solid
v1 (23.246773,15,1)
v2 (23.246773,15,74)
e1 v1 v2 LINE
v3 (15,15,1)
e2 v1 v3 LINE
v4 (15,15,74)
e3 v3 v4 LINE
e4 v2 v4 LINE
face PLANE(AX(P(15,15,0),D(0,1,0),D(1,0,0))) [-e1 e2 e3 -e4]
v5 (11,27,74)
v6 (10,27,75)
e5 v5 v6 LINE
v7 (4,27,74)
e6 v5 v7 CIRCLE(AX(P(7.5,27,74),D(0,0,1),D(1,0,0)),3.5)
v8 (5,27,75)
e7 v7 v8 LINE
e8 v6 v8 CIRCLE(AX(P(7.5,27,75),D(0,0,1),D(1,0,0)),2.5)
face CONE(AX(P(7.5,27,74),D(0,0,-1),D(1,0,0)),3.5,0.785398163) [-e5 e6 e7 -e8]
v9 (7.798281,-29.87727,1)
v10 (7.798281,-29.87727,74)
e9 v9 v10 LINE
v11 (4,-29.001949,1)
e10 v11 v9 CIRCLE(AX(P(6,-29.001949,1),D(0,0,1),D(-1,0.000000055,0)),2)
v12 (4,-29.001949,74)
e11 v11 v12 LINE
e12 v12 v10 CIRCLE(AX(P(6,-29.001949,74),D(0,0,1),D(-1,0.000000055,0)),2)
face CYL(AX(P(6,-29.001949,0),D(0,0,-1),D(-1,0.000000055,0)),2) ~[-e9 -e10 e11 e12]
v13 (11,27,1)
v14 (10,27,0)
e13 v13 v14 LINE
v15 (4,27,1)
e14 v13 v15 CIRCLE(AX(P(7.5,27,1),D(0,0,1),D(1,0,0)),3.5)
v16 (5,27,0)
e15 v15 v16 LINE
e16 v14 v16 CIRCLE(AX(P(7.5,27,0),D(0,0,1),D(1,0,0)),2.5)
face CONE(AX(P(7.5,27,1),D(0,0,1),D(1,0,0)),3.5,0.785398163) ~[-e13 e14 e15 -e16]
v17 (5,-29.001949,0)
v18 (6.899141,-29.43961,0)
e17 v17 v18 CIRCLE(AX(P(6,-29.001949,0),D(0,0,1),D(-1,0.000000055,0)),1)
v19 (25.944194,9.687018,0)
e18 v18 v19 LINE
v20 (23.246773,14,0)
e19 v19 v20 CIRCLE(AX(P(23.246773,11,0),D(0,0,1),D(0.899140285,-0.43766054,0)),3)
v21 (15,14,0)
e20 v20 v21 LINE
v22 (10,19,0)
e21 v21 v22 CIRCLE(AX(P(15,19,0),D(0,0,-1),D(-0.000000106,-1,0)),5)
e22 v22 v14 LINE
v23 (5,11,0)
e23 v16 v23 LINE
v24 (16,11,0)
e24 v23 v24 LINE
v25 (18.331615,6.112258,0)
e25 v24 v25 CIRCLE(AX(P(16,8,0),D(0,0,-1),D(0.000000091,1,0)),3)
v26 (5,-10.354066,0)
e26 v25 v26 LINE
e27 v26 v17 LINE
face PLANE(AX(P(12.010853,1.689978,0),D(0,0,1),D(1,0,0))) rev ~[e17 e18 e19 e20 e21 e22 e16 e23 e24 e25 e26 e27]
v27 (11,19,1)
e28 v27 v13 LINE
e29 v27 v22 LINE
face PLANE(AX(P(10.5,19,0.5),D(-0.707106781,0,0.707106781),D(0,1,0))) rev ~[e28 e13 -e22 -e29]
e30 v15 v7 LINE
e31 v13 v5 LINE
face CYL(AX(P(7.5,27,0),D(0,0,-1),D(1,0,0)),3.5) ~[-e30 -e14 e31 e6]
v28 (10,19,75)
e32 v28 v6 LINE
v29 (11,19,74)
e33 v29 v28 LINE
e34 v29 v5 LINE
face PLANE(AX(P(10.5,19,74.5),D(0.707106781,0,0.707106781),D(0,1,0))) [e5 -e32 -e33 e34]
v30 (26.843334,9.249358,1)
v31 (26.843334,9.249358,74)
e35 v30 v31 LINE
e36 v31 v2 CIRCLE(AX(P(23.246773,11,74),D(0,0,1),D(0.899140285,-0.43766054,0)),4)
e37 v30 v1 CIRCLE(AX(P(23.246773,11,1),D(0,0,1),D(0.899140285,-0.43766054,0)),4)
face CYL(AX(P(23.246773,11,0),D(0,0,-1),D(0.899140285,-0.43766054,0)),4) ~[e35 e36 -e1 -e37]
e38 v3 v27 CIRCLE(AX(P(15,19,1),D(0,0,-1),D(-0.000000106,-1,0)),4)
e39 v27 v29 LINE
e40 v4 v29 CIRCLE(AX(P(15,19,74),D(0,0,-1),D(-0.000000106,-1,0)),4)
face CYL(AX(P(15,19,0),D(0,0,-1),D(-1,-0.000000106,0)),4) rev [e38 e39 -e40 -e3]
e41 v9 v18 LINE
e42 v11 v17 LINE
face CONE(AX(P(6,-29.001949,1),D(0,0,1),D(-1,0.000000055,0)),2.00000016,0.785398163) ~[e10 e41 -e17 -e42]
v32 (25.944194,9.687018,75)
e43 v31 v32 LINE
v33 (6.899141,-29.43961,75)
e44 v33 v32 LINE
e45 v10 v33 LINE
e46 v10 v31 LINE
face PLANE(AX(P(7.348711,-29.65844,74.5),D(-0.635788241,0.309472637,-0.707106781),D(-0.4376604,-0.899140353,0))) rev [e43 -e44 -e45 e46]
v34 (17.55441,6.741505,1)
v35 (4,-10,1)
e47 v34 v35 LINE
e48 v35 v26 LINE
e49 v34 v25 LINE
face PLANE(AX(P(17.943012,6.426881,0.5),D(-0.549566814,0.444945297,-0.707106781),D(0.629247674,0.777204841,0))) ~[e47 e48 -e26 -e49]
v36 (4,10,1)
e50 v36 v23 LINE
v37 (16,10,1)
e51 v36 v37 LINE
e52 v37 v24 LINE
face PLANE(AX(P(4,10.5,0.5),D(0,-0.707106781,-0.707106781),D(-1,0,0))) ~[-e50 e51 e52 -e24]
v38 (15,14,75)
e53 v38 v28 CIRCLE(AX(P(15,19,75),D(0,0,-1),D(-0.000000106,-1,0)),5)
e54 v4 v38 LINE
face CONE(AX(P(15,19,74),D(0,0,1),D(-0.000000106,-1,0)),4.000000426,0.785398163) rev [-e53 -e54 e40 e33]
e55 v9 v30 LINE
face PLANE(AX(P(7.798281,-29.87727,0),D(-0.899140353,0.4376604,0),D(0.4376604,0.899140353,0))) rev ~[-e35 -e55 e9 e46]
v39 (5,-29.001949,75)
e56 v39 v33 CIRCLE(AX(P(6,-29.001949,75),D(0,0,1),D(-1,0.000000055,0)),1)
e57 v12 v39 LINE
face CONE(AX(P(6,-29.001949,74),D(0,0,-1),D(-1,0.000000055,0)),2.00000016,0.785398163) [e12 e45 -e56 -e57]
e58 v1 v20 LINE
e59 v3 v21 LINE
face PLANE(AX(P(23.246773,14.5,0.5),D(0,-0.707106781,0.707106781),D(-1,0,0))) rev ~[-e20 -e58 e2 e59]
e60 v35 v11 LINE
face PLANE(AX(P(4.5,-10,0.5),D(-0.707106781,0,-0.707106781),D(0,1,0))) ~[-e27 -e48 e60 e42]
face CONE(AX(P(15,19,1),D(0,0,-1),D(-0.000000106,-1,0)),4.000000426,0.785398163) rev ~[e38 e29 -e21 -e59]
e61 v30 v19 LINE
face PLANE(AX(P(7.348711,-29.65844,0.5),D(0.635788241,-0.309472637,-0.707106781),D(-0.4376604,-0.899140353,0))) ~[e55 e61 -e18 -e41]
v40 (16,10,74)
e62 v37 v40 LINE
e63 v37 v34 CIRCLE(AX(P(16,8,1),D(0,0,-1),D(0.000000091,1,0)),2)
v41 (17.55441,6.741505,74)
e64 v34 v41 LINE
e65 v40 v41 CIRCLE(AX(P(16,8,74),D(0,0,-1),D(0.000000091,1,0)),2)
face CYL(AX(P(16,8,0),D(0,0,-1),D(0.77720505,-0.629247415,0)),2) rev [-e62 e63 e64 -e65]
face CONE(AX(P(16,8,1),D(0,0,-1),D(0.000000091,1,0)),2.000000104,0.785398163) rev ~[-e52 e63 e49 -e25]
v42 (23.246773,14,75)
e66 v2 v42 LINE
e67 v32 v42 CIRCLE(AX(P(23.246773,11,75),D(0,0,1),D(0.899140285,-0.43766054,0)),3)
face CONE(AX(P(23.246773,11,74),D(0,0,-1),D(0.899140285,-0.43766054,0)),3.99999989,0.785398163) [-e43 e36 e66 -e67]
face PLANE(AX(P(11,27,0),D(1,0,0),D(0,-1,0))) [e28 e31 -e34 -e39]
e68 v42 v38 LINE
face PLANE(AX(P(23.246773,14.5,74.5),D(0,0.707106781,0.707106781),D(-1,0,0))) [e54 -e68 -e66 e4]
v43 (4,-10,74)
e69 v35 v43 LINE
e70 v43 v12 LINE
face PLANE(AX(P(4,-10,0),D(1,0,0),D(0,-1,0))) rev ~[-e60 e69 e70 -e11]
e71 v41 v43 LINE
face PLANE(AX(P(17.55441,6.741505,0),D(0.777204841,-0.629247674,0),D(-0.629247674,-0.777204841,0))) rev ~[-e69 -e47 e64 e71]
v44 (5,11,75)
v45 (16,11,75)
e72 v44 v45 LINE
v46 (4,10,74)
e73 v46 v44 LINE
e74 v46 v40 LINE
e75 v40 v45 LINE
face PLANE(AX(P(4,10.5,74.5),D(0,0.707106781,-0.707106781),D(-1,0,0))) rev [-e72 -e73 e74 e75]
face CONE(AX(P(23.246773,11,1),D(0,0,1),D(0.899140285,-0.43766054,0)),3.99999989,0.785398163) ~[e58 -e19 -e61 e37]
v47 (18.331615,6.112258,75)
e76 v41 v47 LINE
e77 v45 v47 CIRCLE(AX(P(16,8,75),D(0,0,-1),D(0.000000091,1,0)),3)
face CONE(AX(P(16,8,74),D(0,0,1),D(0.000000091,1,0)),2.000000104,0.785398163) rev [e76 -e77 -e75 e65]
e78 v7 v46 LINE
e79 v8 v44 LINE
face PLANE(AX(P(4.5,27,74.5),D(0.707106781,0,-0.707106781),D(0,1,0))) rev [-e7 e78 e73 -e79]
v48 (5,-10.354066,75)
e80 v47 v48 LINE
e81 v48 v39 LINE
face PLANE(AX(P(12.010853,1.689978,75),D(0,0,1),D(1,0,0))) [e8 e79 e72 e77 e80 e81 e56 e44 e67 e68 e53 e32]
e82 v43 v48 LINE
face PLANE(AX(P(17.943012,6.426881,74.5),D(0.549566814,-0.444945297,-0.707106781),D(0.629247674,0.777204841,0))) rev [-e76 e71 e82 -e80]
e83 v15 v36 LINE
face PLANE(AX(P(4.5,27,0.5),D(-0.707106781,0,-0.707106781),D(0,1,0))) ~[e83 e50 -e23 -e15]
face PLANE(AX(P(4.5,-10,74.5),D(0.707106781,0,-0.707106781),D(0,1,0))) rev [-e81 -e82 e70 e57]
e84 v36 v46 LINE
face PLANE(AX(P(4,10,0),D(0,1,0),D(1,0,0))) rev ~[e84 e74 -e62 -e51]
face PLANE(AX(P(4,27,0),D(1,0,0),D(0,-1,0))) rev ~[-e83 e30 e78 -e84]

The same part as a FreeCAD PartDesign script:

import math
import FreeCAD as App
import Part
import Sketcher

V = App.Vector
Q = App.Units.Quantity


def edges_at(feature, points):
    """Names of the edges that pass closest to the given points."""
    edges = feature.Shape.Edges
    near = lambda p: min(range(len(edges)), key=lambda i: edges[i].distToShape(Part.Vertex(*p))[0])
    return sorted({f"Edge{near(p) + 1}" for p in points})

doc = App.newDocument("Part")
body = doc.addObject("PartDesign::Body", "Body")

# Sketch on XY plane
sketch1 = body.newObject("Sketcher::SketchObject", "Sketch")
sketch1.AttachmentSupport = (doc.getObject("XY_Plane"), [""])
sketch1.MapMode = "FlatFace"
sketch1.addGeometry([
    Part.LineSegment(V(4, 27, 0), V(4, 10, 0)),  # 0
    Part.LineSegment(V(4, 10, 0), V(16, 10, 0)),  # 1
    Part.ArcOfCircle(Part.Circle(V(16, 8, 0), V(0, 0, 1), 2), math.radians(-39), math.radians(90)),  # 2
    Part.LineSegment(V(17.6, 6.7, 0), V(4, -10, 0)),  # 3
    Part.LineSegment(V(4, -10, 0), V(4, -29, 0)),  # 4
    Part.ArcOfCircle(Part.Circle(V(6, -29, 0), V(0, 0, 1), 2), math.radians(180), math.radians(334)),  # 5
    Part.LineSegment(V(7.8, -29.9, 0), V(26.8, 9.2, 0)),  # 6
    Part.ArcOfCircle(Part.Circle(V(23.2, 11, 0), V(0, 0, 1), 4), math.radians(-26), math.radians(90)),  # 7
    Part.LineSegment(V(23.2, 15, 0), V(15, 15, 0)),  # 8
    Part.ArcOfCircle(Part.Circle(V(15, 19, 0), V(0, 0, 1), 4), math.radians(-180), math.radians(-90)),  # 9
    Part.LineSegment(V(11, 19, 0), V(11, 27, 0)),  # 10
    Part.ArcOfCircle(Part.Circle(V(7.5, 27, 0), V(0, 0, 1), 3.5), math.radians(0), math.radians(180)),  # 11
], False)
sketch1.addConstraint([
    Sketcher.Constraint("Coincident", 0, 2, 1, 1),
    Sketcher.Constraint("Tangent", 1, 2, 2, 2),
    Sketcher.Constraint("Tangent", 2, 1, 3, 1),
    Sketcher.Constraint("Coincident", 3, 2, 4, 1),
    Sketcher.Constraint("Tangent", 4, 2, 5, 1),
    Sketcher.Constraint("Tangent", 5, 2, 6, 1),
    Sketcher.Constraint("Tangent", 6, 2, 7, 1),
    Sketcher.Constraint("Tangent", 7, 2, 8, 1),
    Sketcher.Constraint("Tangent", 8, 2, 9, 2),
    Sketcher.Constraint("Tangent", 9, 1, 10, 1),
    Sketcher.Constraint("Tangent", 10, 2, 11, 1),
    Sketcher.Constraint("Tangent", 11, 2, 0, 1),
    Sketcher.Constraint("Vertical", 0),
    Sketcher.Constraint("Horizontal", 1),
    Sketcher.Constraint("Vertical", 4),
    Sketcher.Constraint("Horizontal", 8),
    Sketcher.Constraint("Vertical", 10),
    Sketcher.Constraint("Equal", 2, 5),
    Sketcher.Constraint("Equal", 7, 9),
    Sketcher.Constraint("Symmetric", 0, 2, 3, 2, -1),
    Sketcher.Constraint("Radius", 2, Q("2 mm")),
    Sketcher.Constraint("Radius", 7, Q("4 mm")),
    Sketcher.Constraint("Radius", 11, Q("3.5 mm")),
    Sketcher.Constraint("DistanceX", 1, 1, 1, 2, Q("12 mm")),
    Sketcher.Constraint("DistanceY", 0, 2, 0, 1, Q("17 mm")),
    Sketcher.Constraint("DistanceY", 10, 1, 10, 2, Q("8 mm")),
    Sketcher.Constraint("DistanceX", -1, 1, 2, 3, Q("16 mm")),
    Sketcher.Constraint("DistanceY", -1, 1, 2, 3, Q("8 mm")),
    Sketcher.Constraint("DistanceY", 4, 2, 4, 1, Q("19.001949 mm")),
    Sketcher.Constraint("DistanceX", 8, 2, 8, 1, Q("8.246773 mm")),
])
pad1 = body.newObject("PartDesign::Pad", "Pad")
pad1.Profile = sketch1
pad1.Length = 75
doc.recompute()

chamfer = body.newObject("PartDesign::Chamfer", "Chamfer")
chamfer.Base = (pad1, edges_at(pad1, [
    (7.5, 30.5, 75),
    (4, 18.5, 75),
    (10, 10, 75),
    (17.805, 8.861, 75),
    (10.777, -1.629, 75),
    (4, -19.501, 75),
    (5.551, -30.951, 75),
    (17.321, -10.314, 75),
    (26.638, 13.121, 75),
    (19.123, 15, 75),
    (12.172, 16.172, 75),
    (11, 23, 75),
    (7.5, 30.5, 0),
    (4, 18.5, 0),
    (10, 10, 0),
    (17.805, 8.861, 0),
    (10.777, -1.629, 0),
    (4, -19.501, 0),
    (5.551, -30.951, 0),
    (17.321, -10.314, 0),
    (26.638, 13.121, 0),
    (19.123, 15, 0),
    (12.172, 16.172, 0),
    (11, 23, 0),
]))
chamfer.Size = 1

doc.recompute()
